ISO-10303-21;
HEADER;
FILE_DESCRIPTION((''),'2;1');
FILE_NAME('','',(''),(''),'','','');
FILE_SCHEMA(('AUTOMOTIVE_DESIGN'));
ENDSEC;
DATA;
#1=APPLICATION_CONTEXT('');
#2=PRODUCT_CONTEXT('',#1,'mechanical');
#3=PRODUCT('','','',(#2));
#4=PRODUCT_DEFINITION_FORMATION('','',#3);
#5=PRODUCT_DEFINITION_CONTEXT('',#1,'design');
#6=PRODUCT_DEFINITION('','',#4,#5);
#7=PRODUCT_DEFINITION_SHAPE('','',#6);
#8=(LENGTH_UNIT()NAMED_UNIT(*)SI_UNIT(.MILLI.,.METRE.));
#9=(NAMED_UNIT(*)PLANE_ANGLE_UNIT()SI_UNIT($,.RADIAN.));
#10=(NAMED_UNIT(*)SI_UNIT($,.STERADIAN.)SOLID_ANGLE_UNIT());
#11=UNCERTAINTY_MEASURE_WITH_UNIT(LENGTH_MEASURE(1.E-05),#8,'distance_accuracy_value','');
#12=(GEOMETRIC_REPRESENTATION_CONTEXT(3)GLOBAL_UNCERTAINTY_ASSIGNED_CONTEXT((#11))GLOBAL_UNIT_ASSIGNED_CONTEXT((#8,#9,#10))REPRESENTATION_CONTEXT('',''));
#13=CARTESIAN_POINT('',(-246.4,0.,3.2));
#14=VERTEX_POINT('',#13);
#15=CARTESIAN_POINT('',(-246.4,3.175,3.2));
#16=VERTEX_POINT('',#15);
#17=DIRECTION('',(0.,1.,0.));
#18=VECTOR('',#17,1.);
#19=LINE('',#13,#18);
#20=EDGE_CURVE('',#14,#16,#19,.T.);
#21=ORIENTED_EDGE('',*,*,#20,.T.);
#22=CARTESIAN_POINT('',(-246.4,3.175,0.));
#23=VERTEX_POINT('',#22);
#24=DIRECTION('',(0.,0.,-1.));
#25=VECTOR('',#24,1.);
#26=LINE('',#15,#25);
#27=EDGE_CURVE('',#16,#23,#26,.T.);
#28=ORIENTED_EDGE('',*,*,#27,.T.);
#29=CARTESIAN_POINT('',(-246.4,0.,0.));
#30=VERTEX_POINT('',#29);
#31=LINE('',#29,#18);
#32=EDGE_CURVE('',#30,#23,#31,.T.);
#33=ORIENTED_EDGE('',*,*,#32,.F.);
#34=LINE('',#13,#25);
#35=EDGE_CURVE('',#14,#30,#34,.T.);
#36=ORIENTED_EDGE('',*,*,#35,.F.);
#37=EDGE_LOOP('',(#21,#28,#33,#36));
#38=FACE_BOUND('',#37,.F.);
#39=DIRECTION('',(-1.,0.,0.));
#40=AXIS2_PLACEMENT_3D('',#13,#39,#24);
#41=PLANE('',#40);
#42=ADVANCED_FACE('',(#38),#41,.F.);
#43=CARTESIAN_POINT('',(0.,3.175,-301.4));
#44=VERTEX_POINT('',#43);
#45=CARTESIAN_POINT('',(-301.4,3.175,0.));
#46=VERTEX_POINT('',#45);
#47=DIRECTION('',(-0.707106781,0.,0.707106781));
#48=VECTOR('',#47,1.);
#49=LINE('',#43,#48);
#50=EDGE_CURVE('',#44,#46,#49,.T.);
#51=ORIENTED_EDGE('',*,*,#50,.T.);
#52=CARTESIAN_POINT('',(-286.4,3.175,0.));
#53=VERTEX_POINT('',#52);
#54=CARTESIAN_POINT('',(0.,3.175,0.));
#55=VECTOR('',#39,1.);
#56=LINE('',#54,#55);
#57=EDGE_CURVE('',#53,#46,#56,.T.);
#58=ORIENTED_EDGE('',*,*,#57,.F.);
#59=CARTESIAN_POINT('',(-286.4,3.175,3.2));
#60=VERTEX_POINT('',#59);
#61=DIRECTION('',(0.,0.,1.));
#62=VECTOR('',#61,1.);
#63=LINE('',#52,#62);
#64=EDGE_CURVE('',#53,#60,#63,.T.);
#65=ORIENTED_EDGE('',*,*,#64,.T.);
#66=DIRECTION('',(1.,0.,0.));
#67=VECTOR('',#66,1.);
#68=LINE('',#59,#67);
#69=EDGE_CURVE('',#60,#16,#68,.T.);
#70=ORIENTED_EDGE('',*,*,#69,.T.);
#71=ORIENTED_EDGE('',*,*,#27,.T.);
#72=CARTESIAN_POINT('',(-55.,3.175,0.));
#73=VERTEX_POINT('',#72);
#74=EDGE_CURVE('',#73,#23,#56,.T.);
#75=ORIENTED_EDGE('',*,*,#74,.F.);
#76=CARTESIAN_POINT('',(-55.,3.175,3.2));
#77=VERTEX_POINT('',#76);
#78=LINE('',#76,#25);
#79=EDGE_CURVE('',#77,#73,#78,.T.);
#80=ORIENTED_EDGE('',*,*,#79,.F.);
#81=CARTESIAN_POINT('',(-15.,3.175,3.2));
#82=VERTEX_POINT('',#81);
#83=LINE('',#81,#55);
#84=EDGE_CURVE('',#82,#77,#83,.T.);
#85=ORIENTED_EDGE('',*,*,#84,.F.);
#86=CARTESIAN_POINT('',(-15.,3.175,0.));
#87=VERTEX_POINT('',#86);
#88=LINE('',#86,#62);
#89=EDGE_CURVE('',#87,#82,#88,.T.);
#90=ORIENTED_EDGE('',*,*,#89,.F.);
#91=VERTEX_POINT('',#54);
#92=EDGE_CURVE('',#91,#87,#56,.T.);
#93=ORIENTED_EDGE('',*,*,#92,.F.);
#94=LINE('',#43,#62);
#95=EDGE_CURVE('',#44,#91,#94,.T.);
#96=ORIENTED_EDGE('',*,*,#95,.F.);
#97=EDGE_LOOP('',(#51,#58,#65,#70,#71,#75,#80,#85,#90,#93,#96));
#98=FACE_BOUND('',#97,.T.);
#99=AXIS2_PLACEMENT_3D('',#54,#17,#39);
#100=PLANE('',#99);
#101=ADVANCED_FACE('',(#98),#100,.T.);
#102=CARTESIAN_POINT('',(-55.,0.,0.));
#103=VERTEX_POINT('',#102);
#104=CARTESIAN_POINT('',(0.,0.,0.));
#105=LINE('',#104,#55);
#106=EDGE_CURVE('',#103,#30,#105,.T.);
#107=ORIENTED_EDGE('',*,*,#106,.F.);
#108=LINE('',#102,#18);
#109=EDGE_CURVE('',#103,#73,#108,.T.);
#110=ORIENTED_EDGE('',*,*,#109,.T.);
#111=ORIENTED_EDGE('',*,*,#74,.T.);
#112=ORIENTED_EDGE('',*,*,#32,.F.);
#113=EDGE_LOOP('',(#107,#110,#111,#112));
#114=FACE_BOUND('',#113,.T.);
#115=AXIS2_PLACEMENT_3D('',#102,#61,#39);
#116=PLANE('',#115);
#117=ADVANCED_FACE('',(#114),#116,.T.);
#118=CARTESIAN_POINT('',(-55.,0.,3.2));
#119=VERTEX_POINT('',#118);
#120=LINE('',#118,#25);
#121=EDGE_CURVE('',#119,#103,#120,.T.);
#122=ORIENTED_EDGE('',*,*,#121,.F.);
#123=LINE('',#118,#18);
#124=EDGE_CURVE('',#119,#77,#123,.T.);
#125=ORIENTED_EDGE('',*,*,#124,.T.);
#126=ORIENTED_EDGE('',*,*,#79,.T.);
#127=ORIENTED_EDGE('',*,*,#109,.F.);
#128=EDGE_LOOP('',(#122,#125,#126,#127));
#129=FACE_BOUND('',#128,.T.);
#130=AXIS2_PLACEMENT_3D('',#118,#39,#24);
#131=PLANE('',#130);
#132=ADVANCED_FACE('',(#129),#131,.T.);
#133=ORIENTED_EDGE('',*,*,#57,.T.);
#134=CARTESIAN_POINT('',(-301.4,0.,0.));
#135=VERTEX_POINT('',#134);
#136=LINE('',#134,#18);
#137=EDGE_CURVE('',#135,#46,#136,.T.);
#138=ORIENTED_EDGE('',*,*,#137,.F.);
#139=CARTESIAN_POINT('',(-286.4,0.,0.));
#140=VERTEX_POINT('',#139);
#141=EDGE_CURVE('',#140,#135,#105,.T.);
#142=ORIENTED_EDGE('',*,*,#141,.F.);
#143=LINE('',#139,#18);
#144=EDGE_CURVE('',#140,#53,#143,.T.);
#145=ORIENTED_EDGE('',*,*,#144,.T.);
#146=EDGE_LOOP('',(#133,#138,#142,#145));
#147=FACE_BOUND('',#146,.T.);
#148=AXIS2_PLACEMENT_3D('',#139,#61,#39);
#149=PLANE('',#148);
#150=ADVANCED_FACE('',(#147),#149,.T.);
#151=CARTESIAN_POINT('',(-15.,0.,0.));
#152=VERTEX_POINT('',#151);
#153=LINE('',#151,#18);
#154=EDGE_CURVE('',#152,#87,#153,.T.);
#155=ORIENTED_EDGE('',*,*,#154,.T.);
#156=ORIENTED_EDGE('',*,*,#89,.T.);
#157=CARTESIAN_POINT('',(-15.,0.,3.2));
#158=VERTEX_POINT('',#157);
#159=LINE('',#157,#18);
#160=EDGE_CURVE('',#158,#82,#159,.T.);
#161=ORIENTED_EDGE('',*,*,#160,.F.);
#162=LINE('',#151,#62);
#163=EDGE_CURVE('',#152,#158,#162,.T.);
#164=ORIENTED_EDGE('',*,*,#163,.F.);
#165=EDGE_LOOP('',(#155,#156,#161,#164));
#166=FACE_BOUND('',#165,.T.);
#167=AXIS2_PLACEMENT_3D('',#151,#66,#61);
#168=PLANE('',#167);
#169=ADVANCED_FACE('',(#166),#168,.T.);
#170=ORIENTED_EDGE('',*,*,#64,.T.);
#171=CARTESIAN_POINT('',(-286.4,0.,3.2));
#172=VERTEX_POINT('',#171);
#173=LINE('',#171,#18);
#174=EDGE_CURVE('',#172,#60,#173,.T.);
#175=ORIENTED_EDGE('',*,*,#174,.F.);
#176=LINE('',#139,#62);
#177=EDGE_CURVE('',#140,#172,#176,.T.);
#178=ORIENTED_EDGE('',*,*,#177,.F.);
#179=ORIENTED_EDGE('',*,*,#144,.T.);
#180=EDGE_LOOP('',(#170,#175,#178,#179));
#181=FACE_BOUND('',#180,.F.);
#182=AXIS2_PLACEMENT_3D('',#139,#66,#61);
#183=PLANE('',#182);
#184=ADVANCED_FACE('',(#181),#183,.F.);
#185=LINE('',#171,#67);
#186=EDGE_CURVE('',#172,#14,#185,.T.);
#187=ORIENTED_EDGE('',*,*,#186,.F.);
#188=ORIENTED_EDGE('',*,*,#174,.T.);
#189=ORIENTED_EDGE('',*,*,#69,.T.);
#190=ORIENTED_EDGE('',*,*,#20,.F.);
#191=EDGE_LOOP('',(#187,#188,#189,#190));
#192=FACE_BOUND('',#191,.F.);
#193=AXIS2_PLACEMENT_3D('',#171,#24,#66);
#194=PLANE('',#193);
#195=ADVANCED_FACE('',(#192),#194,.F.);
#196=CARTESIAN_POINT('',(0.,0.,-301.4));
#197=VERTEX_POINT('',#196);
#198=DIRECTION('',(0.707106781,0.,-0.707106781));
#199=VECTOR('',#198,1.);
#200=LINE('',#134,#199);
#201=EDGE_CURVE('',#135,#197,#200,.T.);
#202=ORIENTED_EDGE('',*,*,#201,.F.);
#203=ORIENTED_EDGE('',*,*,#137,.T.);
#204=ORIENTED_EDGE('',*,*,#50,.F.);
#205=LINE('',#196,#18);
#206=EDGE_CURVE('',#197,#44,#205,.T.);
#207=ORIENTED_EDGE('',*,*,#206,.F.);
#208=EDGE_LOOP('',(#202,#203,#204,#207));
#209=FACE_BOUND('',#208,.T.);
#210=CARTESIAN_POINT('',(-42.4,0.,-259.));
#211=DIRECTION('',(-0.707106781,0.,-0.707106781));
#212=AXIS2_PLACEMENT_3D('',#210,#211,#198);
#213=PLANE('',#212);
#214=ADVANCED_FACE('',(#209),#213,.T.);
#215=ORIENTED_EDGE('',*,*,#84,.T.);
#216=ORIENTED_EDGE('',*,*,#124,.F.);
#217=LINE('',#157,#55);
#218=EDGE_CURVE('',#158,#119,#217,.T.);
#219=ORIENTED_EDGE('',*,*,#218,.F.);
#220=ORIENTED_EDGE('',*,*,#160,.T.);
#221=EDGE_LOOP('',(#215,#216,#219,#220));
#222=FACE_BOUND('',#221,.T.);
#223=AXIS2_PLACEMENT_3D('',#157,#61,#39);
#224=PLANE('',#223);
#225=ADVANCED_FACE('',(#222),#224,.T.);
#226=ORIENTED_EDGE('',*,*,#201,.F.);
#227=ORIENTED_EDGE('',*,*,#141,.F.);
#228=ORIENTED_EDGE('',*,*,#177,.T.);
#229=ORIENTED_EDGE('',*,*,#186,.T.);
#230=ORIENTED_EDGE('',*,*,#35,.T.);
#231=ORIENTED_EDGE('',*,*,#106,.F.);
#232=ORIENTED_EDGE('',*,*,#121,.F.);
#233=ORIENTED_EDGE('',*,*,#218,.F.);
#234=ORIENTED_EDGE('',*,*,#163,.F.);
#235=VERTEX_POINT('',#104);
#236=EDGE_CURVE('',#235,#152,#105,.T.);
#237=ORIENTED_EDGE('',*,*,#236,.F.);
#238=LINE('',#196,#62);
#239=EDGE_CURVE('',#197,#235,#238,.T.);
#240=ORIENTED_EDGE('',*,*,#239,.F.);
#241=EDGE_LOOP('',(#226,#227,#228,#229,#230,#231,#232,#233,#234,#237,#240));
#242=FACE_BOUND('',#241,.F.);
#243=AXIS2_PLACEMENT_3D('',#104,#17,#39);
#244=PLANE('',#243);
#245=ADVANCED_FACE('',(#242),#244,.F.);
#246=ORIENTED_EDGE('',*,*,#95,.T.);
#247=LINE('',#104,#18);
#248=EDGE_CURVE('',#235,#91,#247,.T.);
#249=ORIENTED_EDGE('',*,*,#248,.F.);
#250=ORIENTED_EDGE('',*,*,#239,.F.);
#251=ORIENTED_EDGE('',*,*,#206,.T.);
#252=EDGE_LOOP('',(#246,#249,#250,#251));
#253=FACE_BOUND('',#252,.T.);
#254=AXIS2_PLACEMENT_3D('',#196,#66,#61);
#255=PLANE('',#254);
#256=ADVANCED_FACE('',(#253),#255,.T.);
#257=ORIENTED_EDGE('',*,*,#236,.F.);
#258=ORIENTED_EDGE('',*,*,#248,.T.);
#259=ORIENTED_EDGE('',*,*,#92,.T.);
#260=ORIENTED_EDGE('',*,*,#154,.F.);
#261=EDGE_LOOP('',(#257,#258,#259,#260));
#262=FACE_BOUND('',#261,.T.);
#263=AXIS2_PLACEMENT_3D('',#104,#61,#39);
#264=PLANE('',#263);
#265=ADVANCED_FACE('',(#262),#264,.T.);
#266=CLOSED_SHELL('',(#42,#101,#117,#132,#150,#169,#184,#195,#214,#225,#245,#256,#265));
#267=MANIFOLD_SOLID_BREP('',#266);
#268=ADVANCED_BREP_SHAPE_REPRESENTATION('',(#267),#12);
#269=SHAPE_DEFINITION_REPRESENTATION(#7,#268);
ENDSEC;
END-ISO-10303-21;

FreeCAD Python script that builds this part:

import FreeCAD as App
import Part
import Sketcher
from FreeCAD import Vector
Q = App.Units.Quantity


def add_polygon(sketch, points):
    """Adds a closed chain of lines whose ends are joined by coincident constraints."""
    first, n = sketch.GeometryCount, len(points)
    for a, b in zip(points, points[1:] + points[:1]):
        sketch.addGeometry(Part.LineSegment(App.Vector(*a, 0), App.Vector(*b, 0)), False)
    for i in range(n):
        sketch.addConstraint(Sketcher.Constraint("Coincident", first + i, 2, first + (i + 1) % n, 1))

doc = App.newDocument("Part")
body = doc.addObject("PartDesign::Body", "Body")

sketch1 = body.newObject("Sketcher::SketchObject", "Sketch")
sketch1.AttachmentSupport = (doc.getObject("XZ_Plane"), [""])
sketch1.MapMode = "FlatFace"
add_polygon(sketch1, [(-15, 0), (0, 0), (0, -301.4), (-301.4, 0), (-286.4, 0), (-286.4, 3.2), (-246.4, 3.2), (-246.4, 0), (-55, 0), (-55, 3.2), (-15, 3.2)])
sketch1.addConstraint(Sketcher.Constraint("Horizontal", 0))
sketch1.addConstraint(Sketcher.Constraint("Vertical", 1))
sketch1.addConstraint(Sketcher.Constraint("Horizontal", 3))
sketch1.addConstraint(Sketcher.Constraint("Vertical", 4))
sketch1.addConstraint(Sketcher.Constraint("Horizontal", 5))
sketch1.addConstraint(Sketcher.Constraint("Vertical", 6))
sketch1.addConstraint(Sketcher.Constraint("Horizontal", 7))
sketch1.addConstraint(Sketcher.Constraint("Vertical", 8))
sketch1.addConstraint(Sketcher.Constraint("Horizontal", 9))
sketch1.addConstraint(Sketcher.Constraint("Vertical", 10))
sketch1.addConstraint(Sketcher.Constraint("Coincident", 0, 2, -1, 1))
sketch1.addConstraint(Sketcher.Constraint("PointOnObject", 2, 2, -1))
sketch1.addConstraint(Sketcher.Constraint("PointOnObject", 6, 2, -1))
sketch1.addConstraint(Sketcher.Constraint("Horizontal", 5, 2, 8, 2))
sketch1.addConstraint(Sketcher.Constraint("Equal", 0, 3))
sketch1.addConstraint(Sketcher.Constraint("Equal", 5, 9))
sketch1.addConstraint(Sketcher.Constraint("DistanceX", 0, 1, 0, 2, Q("15 mm")))
sketch1.addConstraint(Sketcher.Constraint("DistanceX", 5, 1, 5, 2, Q("40 mm")))
sketch1.addConstraint(Sketcher.Constraint("DistanceY", 1, 2, 1, 1, Q("301.4 mm")))
sketch1.addConstraint(Sketcher.Constraint("DistanceY", 4, 1, 4, 2, Q("3.2 mm")))
sketch1.addConstraint(Sketcher.Constraint("DistanceX", 2, 2, -1, 1, Q("301.4 mm")))
pad1 = body.newObject("PartDesign::Pad", "Pad")
pad1.Profile = sketch1
pad1.Length = 3.175
pad1.Reversed = True

doc.recompute()
